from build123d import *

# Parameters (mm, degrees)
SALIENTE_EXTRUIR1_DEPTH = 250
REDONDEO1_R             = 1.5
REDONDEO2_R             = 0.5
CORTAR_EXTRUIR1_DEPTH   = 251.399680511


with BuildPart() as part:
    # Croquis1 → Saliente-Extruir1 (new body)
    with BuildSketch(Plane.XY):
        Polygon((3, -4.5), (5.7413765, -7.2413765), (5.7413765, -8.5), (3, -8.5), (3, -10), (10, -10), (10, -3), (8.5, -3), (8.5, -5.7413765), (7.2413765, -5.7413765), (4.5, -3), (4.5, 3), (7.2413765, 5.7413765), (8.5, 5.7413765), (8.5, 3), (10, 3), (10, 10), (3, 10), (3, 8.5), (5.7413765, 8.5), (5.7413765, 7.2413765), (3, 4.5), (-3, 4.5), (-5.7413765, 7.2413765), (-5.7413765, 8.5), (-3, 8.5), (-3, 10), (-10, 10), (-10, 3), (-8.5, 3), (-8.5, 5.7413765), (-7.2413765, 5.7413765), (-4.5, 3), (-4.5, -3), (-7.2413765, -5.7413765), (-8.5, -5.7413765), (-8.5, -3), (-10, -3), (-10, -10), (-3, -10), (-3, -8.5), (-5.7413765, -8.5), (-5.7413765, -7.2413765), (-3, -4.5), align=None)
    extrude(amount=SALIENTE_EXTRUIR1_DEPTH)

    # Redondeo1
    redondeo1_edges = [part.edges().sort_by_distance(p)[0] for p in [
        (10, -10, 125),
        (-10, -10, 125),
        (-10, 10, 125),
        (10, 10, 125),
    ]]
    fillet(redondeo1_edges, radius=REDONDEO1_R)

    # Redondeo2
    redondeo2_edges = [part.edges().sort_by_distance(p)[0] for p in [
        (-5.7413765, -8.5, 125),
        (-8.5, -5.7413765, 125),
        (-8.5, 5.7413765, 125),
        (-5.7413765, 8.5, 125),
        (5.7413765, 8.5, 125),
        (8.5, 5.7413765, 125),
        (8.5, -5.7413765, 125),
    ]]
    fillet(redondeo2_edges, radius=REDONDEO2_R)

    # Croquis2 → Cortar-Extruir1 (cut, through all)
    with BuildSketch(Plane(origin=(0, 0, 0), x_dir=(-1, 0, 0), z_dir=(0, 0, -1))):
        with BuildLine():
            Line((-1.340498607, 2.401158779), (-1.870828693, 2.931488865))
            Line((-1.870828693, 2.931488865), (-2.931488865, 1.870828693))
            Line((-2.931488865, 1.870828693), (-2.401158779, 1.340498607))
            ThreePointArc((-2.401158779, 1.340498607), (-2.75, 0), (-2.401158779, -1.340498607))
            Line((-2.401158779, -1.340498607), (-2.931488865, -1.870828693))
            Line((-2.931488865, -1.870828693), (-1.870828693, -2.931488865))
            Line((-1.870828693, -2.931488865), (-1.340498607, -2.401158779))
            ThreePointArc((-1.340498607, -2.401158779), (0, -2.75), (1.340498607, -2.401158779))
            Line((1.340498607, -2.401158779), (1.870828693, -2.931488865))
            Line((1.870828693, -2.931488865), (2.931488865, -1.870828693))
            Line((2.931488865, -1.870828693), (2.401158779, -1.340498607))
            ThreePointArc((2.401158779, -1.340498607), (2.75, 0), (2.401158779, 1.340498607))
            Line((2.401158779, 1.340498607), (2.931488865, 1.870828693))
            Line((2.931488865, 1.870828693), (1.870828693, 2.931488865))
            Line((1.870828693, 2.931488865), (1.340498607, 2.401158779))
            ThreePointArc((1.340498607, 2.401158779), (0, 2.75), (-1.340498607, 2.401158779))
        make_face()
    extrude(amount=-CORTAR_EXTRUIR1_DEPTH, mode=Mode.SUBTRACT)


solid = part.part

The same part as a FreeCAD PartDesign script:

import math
import FreeCAD as App
import Part
import Sketcher
Q = App.Units.Quantity


def edges_at(feature, points):
    """Names of the edges that pass closest to the given points."""
    edges = feature.Shape.Edges
    near = lambda p: min(range(len(edges)), key=lambda i: edges[i].distToShape(Part.Vertex(*p))[0])
    return sorted({f"Edge{near(p) + 1}" for p in points})

doc = App.newDocument("Part")
params = doc.addObject("Spreadsheet::Sheet", "Params")
for row, (alias, value) in enumerate([
    ("sketch1_width", "7 mm"),
    ("sketch1_width2", "6 mm"),
    ("sketch1_width3", "1.5 mm"),
    ("pad1_length", "250 mm"),
    ("fillet_radius", "1.5 mm"),
    ("fillet2_radius", "0.5 mm"),
    ("sketch2_radius", "2.75 mm"),
    ("sketch2_length", "1.5 mm"),
    ("sketch2_length2", "0.75 mm"),
], start=1):
    params.set(f"A{row}", alias)
    params.set(f"B{row}", "=" + value)
    params.setAlias(f"B{row}", alias)

body = doc.addObject("PartDesign::Body", "Body")

# Sketch on XY plane
sketch1 = body.newObject("Sketcher::SketchObject", "Sketch")
sketch1.AttachmentSupport = (doc.getObject("XY_Plane"), [""])
sketch1.MapMode = "FlatFace"
sketch1.addGeometry([
    Part.LineSegment(App.Vector(3, -4.5, 0), App.Vector(5.741377, -7.241377, 0)),  # 0
    Part.LineSegment(App.Vector(5.741377, -7.241377, 0), App.Vector(5.741377, -8.5, 0)),  # 1
    Part.LineSegment(App.Vector(5.741377, -8.5, 0), App.Vector(3, -8.5, 0)),  # 2
    Part.LineSegment(App.Vector(3, -8.5, 0), App.Vector(3, -10, 0)),  # 3
    Part.LineSegment(App.Vector(3, -10, 0), App.Vector(10, -10, 0)),  # 4
    Part.LineSegment(App.Vector(10, -10, 0), App.Vector(10, -3, 0)),  # 5
    Part.LineSegment(App.Vector(10, -3, 0), App.Vector(8.5, -3, 0)),  # 6
    Part.LineSegment(App.Vector(8.5, -3, 0), App.Vector(8.5, -5.741377, 0)),  # 7
    Part.LineSegment(App.Vector(8.5, -5.741377, 0), App.Vector(7.241377, -5.741377, 0)),  # 8
    Part.LineSegment(App.Vector(7.241377, -5.741377, 0), App.Vector(4.5, -3, 0)),  # 9
    Part.LineSegment(App.Vector(4.5, -3, 0), App.Vector(4.5, 3, 0)),  # 10
    Part.LineSegment(App.Vector(4.5, 3, 0), App.Vector(7.241377, 5.741377, 0)),  # 11
    Part.LineSegment(App.Vector(7.241377, 5.741377, 0), App.Vector(8.5, 5.741377, 0)),  # 12
    Part.LineSegment(App.Vector(8.5, 5.741377, 0), App.Vector(8.5, 3, 0)),  # 13
    Part.LineSegment(App.Vector(8.5, 3, 0), App.Vector(10, 3, 0)),  # 14
    Part.LineSegment(App.Vector(10, 3, 0), App.Vector(10, 10, 0)),  # 15
    Part.LineSegment(App.Vector(10, 10, 0), App.Vector(3, 10, 0)),  # 16
    Part.LineSegment(App.Vector(3, 10, 0), App.Vector(3, 8.5, 0)),  # 17
    Part.LineSegment(App.Vector(3, 8.5, 0), App.Vector(5.741377, 8.5, 0)),  # 18
    Part.LineSegment(App.Vector(5.741377, 8.5, 0), App.Vector(5.741377, 7.241377, 0)),  # 19
    Part.LineSegment(App.Vector(5.741377, 7.241377, 0), App.Vector(3, 4.5, 0)),  # 20
    Part.LineSegment(App.Vector(3, 4.5, 0), App.Vector(-3, 4.5, 0)),  # 21
    Part.LineSegment(App.Vector(-3, 4.5, 0), App.Vector(-5.741377, 7.241377, 0)),  # 22
    Part.LineSegment(App.Vector(-5.741377, 7.241377, 0), App.Vector(-5.741377, 8.5, 0)),  # 23
    Part.LineSegment(App.Vector(-5.741377, 8.5, 0), App.Vector(-3, 8.5, 0)),  # 24
    Part.LineSegment(App.Vector(-3, 8.5, 0), App.Vector(-3, 10, 0)),  # 25
    Part.LineSegment(App.Vector(-3, 10, 0), App.Vector(-10, 10, 0)),  # 26
    Part.LineSegment(App.Vector(-10, 10, 0), App.Vector(-10, 3, 0)),  # 27
    Part.LineSegment(App.Vector(-10, 3, 0), App.Vector(-8.5, 3, 0)),  # 28
    Part.LineSegment(App.Vector(-8.5, 3, 0), App.Vector(-8.5, 5.741377, 0)),  # 29
    Part.LineSegment(App.Vector(-8.5, 5.741377, 0), App.Vector(-7.241377, 5.741377, 0)),  # 30
    Part.LineSegment(App.Vector(-7.241377, 5.741377, 0), App.Vector(-4.5, 3, 0)),  # 31
    Part.LineSegment(App.Vector(-4.5, 3, 0), App.Vector(-4.5, -3, 0)),  # 32
    Part.LineSegment(App.Vector(-4.5, -3, 0), App.Vector(-7.241377, -5.741377, 0)),  # 33
    Part.LineSegment(App.Vector(-7.241377, -5.741377, 0), App.Vector(-8.5, -5.741377, 0)),  # 34
    Part.LineSegment(App.Vector(-8.5, -5.741377, 0), App.Vector(-8.5, -3, 0)),  # 35
    Part.LineSegment(App.Vector(-8.5, -3, 0), App.Vector(-10, -3, 0)),  # 36
    Part.LineSegment(App.Vector(-10, -3, 0), App.Vector(-10, -10, 0)),  # 37
    Part.LineSegment(App.Vector(-10, -10, 0), App.Vector(-3, -10, 0)),  # 38
    Part.LineSegment(App.Vector(-3, -10, 0), App.Vector(-3, -8.5, 0)),  # 39
    Part.LineSegment(App.Vector(-3, -8.5, 0), App.Vector(-5.741377, -8.5, 0)),  # 40
    Part.LineSegment(App.Vector(-5.741377, -8.5, 0), App.Vector(-5.741377, -7.241377, 0)),  # 41
    Part.LineSegment(App.Vector(-5.741377, -7.241377, 0), App.Vector(-3, -4.5, 0)),  # 42
    Part.LineSegment(App.Vector(-3, -4.5, 0), App.Vector(3, -4.5, 0)),  # 43
], False)
sketch1.addConstraint([
    Sketcher.Constraint("Coincident", 0, 2, 1, 1),
    Sketcher.Constraint("Coincident", 1, 2, 2, 1),
    Sketcher.Constraint("Coincident", 2, 2, 3, 1),
    Sketcher.Constraint("Coincident", 3, 2, 4, 1),
    Sketcher.Constraint("Coincident", 4, 2, 5, 1),
    Sketcher.Constraint("Coincident", 5, 2, 6, 1),
    Sketcher.Constraint("Coincident", 6, 2, 7, 1),
    Sketcher.Constraint("Coincident", 7, 2, 8, 1),
    Sketcher.Constraint("Coincident", 8, 2, 9, 1),
    Sketcher.Constraint("Coincident", 9, 2, 10, 1),
    Sketcher.Constraint("Coincident", 10, 2, 11, 1),
    Sketcher.Constraint("Coincident", 11, 2, 12, 1),
    Sketcher.Constraint("Coincident", 12, 2, 13, 1),
    Sketcher.Constraint("Coincident", 13, 2, 14, 1),
    Sketcher.Constraint("Coincident", 14, 2, 15, 1),
    Sketcher.Constraint("Coincident", 15, 2, 16, 1),
    Sketcher.Constraint("Coincident", 16, 2, 17, 1),
    Sketcher.Constraint("Coincident", 17, 2, 18, 1),
    Sketcher.Constraint("Coincident", 18, 2, 19, 1),
    Sketcher.Constraint("Coincident", 19, 2, 20, 1),
    Sketcher.Constraint("Coincident", 20, 2, 21, 1),
    Sketcher.Constraint("Coincident", 21, 2, 22, 1),
    Sketcher.Constraint("Coincident", 22, 2, 23, 1),
    Sketcher.Constraint("Coincident", 23, 2, 24, 1),
    Sketcher.Constraint("Coincident", 24, 2, 25, 1),
    Sketcher.Constraint("Coincident", 25, 2, 26, 1),
    Sketcher.Constraint("Coincident", 26, 2, 27, 1),
    Sketcher.Constraint("Coincident", 27, 2, 28, 1),
    Sketcher.Constraint("Coincident", 28, 2, 29, 1),
    Sketcher.Constraint("Coincident", 29, 2, 30, 1),
    Sketcher.Constraint("Coincident", 30, 2, 31, 1),
    Sketcher.Constraint("Coincident", 31, 2, 32, 1),
    Sketcher.Constraint("Coincident", 32, 2, 33, 1),
    Sketcher.Constraint("Coincident", 33, 2, 34, 1),
    Sketcher.Constraint("Coincident", 34, 2, 35, 1),
    Sketcher.Constraint("Coincident", 35, 2, 36, 1),
    Sketcher.Constraint("Coincident", 36, 2, 37, 1),
    Sketcher.Constraint("Coincident", 37, 2, 38, 1),
    Sketcher.Constraint("Coincident", 38, 2, 39, 1),
    Sketcher.Constraint("Coincident", 39, 2, 40, 1),
    Sketcher.Constraint("Coincident", 40, 2, 41, 1),
    Sketcher.Constraint("Coincident", 41, 2, 42, 1),
    Sketcher.Constraint("Coincident", 42, 2, 43, 1),
    Sketcher.Constraint("Coincident", 43, 2, 0, 1),
    Sketcher.Constraint("Vertical", 1),
    Sketcher.Constraint("Horizontal", 2),
    Sketcher.Constraint("Vertical", 3),
    Sketcher.Constraint("Horizontal", 4),
    Sketcher.Constraint("Vertical", 5),
    Sketcher.Constraint("Horizontal", 6),
    Sketcher.Constraint("Vertical", 7),
    Sketcher.Constraint("Horizontal", 8),
    Sketcher.Constraint("Vertical", 10),
    Sketcher.Constraint("Horizontal", 12),
    Sketcher.Constraint("Vertical", 13),
    Sketcher.Constraint("Horizontal", 14),
    Sketcher.Constraint("Vertical", 15),
    Sketcher.Constraint("Horizontal", 16),
    Sketcher.Constraint("Vertical", 17),
    Sketcher.Constraint("Horizontal", 18),
    Sketcher.Constraint("Vertical", 19),
    Sketcher.Constraint("Horizontal", 21),
    Sketcher.Constraint("Vertical", 23),
    Sketcher.Constraint("Horizontal", 24),
    Sketcher.Constraint("Vertical", 25),
    Sketcher.Constraint("Horizontal", 26),
    Sketcher.Constraint("Vertical", 27),
    Sketcher.Constraint("Horizontal", 28),
    Sketcher.Constraint("Vertical", 29),
    Sketcher.Constraint("Horizontal", 30),
    Sketcher.Constraint("Vertical", 32),
    Sketcher.Constraint("Horizontal", 34),
    Sketcher.Constraint("Vertical", 35),
    Sketcher.Constraint("Horizontal", 36),
    Sketcher.Constraint("Vertical", 37),
    Sketcher.Constraint("Horizontal", 38),
    Sketcher.Constraint("Vertical", 39),
    Sketcher.Constraint("Horizontal", 40),
    Sketcher.Constraint("Vertical", 41),
    Sketcher.Constraint("Horizontal", 43),
    Sketcher.Constraint("Symmetric", 0, 2, 22, 2, -1, 1),
    Sketcher.Constraint("Symmetric", 2, 2, 24, 2, -1, 1),
    Sketcher.Constraint("Symmetric", 4, 2, 26, 2, -1, 1),
    Sketcher.Constraint("Symmetric", 6, 2, 28, 2, -1, 1),
    Sketcher.Constraint("Symmetric", 8, 2, 30, 2, -1, 1),
    Sketcher.Constraint("Symmetric", 9, 2, 31, 2, -1, 1),
    Sketcher.Constraint("Symmetric", 11, 2, 33, 2, -1, 1),
    Sketcher.Constraint("Symmetric", 13, 2, 35, 2, -1, 1),
    Sketcher.Constraint("Symmetric", 15, 2, 37, 2, -1, 1),
    Sketcher.Constraint("Symmetric", 17, 2, 39, 2, -1, 1),
    Sketcher.Constraint("Symmetric", 19, 2, 41, 2, -1, 1),
    Sketcher.Constraint("Symmetric", 20, 2, 42, 2, -1, 1),
    Sketcher.Constraint("Symmetric", 19, 2, 22, 2, -2),
    Sketcher.Constraint("Symmetric", 17, 2, 24, 2, -2),
    Sketcher.Constraint("Symmetric", 15, 2, 26, 2, -2),
    Sketcher.Constraint("Symmetric", 13, 2, 28, 2, -2),
    Sketcher.Constraint("Symmetric", 11, 2, 30, 2, -2),
    Sketcher.Constraint("Parallel", 0, 9),
    Sketcher.Constraint("Perpendicular", 9, 11),
    Sketcher.Constraint("Parallel", 11, 20),
    Sketcher.Constraint("Perpendicular", 20, 22),
    Sketcher.Constraint("Perpendicular", 31, 33),
    Sketcher.Constraint("Horizontal", 6, 2, 9, 2),
    Sketcher.Constraint("Horizontal", 10, 2, 13, 2),
    Sketcher.Constraint("Vertical", 17, 2, 20, 2),
    Sketcher.Constraint("Equal", 34, 1),
    Sketcher.Constraint("Equal", 36, 3),
    Sketcher.Constraint("Equal", 38, 5),
    Sketcher.Constraint("Equal", 40, 7),
    Sketcher.Constraint("Equal", 43, 10),
    Sketcher.Constraint("DistanceX", 4, 1, 4, 2, Q("7 mm")),
    Sketcher.Constraint("DistanceX", 21, 2, 21, 1, Q("6 mm")),
    Sketcher.Constraint("DistanceX", 6, 2, 6, 1, Q("1.5 mm")),
    Sketcher.Constraint("DistanceX", 9, 2, 6, 2, Q("4 mm")),
    Sketcher.Constraint("Distance", 0, Q("3.876892 mm")),
])
sketch1.setExpression("Constraints[110]", "Params.sketch1_width")
sketch1.setExpression("Constraints[111]", "Params.sketch1_width2")
sketch1.setExpression("Constraints[112]", "Params.sketch1_width3")
pad1 = body.newObject("PartDesign::Pad", "Pad")
pad1.Profile = sketch1
pad1.setExpression("Length", "Params.pad1_length")
doc.recompute()

fillet = body.newObject("PartDesign::Fillet", "Fillet")
fillet.Base = (pad1, edges_at(pad1, [
    (10, -10, 125),
    (-10, -10, 125),
    (-10, 10, 125),
    (10, 10, 125),
]))
fillet.setExpression("Radius", "Params.fillet_radius")
doc.recompute()

fillet2 = body.newObject("PartDesign::Fillet", "Fillet001")
fillet2.Base = (fillet, edges_at(fillet, [
    (-5.741, -8.5, 125),
    (-8.5, -5.741, 125),
    (-8.5, 5.741, 125),
    (-5.741, 8.5, 125),
    (5.741, 8.5, 125),
    (8.5, 5.741, 125),
    (8.5, -5.741, 125),
]))
fillet2.setExpression("Radius", "Params.fillet2_radius")

# Sketch on XY plane
sketch2 = body.newObject("Sketcher::SketchObject", "Sketch001")
sketch2.AttachmentSupport = (doc.getObject("XY_Plane"), [""])
sketch2.MapMode = "FlatFace"
sketch2.addGeometry([
    Part.LineSegment(App.Vector(1.340499, 2.401159, 0), App.Vector(1.870829, 2.931489, 0)),  # 0
    Part.LineSegment(App.Vector(1.870829, 2.931489, 0), App.Vector(2.931489, 1.870829, 0)),  # 1
    Part.LineSegment(App.Vector(2.931489, 1.870829, 0), App.Vector(2.401159, 1.340499, 0)),  # 2
    Part.ArcOfCircle(Part.Circle(App.Vector(0, 0, 0), App.Vector(0, 0, 1), 2.75), math.radians(-29.17338), math.radians(29.17338)),  # 3
    Part.LineSegment(App.Vector(2.401159, -1.340499, 0), App.Vector(2.931489, -1.870829, 0)),  # 4
    Part.LineSegment(App.Vector(2.931489, -1.870829, 0), App.Vector(1.870829, -2.931489, 0)),  # 5
    Part.LineSegment(App.Vector(1.870829, -2.931489, 0), App.Vector(1.340499, -2.401159, 0)),  # 6
    Part.ArcOfCircle(Part.Circle(App.Vector(0, 0, 0), App.Vector(0, 0, 1), 2.75), math.radians(-119.17338), math.radians(-60.82662)),  # 7
    Part.LineSegment(App.Vector(-1.340499, -2.401159, 0), App.Vector(-1.870829, -2.931489, 0)),  # 8
    Part.LineSegment(App.Vector(-1.870829, -2.931489, 0), App.Vector(-2.931489, -1.870829, 0)),  # 9
    Part.LineSegment(App.Vector(-2.931489, -1.870829, 0), App.Vector(-2.401159, -1.340499, 0)),  # 10
    Part.ArcOfCircle(Part.Circle(App.Vector(0, 0, 0), App.Vector(0, 0, 1), 2.75), math.radians(150.82662), math.radians(209.17338)),  # 11
    Part.LineSegment(App.Vector(-2.401159, 1.340499, 0), App.Vector(-2.931489, 1.870829, 0)),  # 12
    Part.LineSegment(App.Vector(-2.931489, 1.870829, 0), App.Vector(-1.870829, 2.931489, 0)),  # 13
    Part.LineSegment(App.Vector(-1.870829, 2.931489, 0), App.Vector(-1.340499, 2.401159, 0)),  # 14
    Part.ArcOfCircle(Part.Circle(App.Vector(0, 0, 0), App.Vector(0, 0, 1), 2.75), math.radians(60.82662), math.radians(119.17338)),  # 15
], False)
sketch2.addConstraint([
    Sketcher.Constraint("Coincident", 0, 2, 1, 1),
    Sketcher.Constraint("Coincident", 1, 2, 2, 1),
    Sketcher.Constraint("Coincident", 2, 2, 3, 2),
    Sketcher.Constraint("Coincident", 3, 1, 4, 1),
    Sketcher.Constraint("Coincident", 4, 2, 5, 1),
    Sketcher.Constraint("Coincident", 5, 2, 6, 1),
    Sketcher.Constraint("Coincident", 6, 2, 7, 2),
    Sketcher.Constraint("Coincident", 7, 1, 8, 1),
    Sketcher.Constraint("Coincident", 8, 2, 9, 1),
    Sketcher.Constraint("Coincident", 9, 2, 10, 1),
    Sketcher.Constraint("Coincident", 10, 2, 11, 2),
    Sketcher.Constraint("Coincident", 11, 1, 12, 1),
    Sketcher.Constraint("Coincident", 12, 2, 13, 1),
    Sketcher.Constraint("Coincident", 13, 2, 14, 1),
    Sketcher.Constraint("Coincident", 14, 2, 15, 2),
    Sketcher.Constraint("Coincident", 15, 1, 0, 1),
    Sketcher.Constraint("Coincident", 3, 3, -1, 1),
    Sketcher.Constraint("Coincident", 7, 3, -1, 1),
    Sketcher.Constraint("Coincident", 11, 3, -1, 1),
    Sketcher.Constraint("Coincident", 15, 3, -1, 1),
    Sketcher.Constraint("Equal", 3, 7),
    Sketcher.Constraint("Equal", 7, 11),
    Sketcher.Constraint("Equal", 11, 15),
    Sketcher.Constraint("Symmetric", 0, 2, 8, 2, -1, 1),
    Sketcher.Constraint("Symmetric", 1, 2, 9, 2, -1, 1),
    Sketcher.Constraint("Symmetric", 4, 2, 12, 2, -1, 1),
    Sketcher.Constraint("Symmetric", 5, 2, 13, 2, -1, 1),
    Sketcher.Constraint("Symmetric", 5, 2, 8, 2, -2),
    Sketcher.Constraint("Symmetric", 4, 2, 9, 2, -2),
    Sketcher.Constraint("Perpendicular", 0, 1),
    Sketcher.Constraint("Perpendicular", 1, 2),
    Sketcher.Constraint("Perpendicular", 2, 4),
    Sketcher.Constraint("Perpendicular", 4, 5),
    Sketcher.Constraint("Perpendicular", 5, 6),
    Sketcher.Constraint("Perpendicular", 6, 8),
    Sketcher.Constraint("Perpendicular", 9, 10),
    Sketcher.Constraint("Perpendicular", 10, 12),
    Sketcher.Constraint("Perpendicular", 13, 14),
    Sketcher.Constraint("Equal", 0, 2),
    Sketcher.Constraint("Radius", 3, Q("2.75 mm")),
    Sketcher.Constraint("Distance", 1, Q("1.5 mm")),
    Sketcher.Constraint("Distance", 0, Q("0.75 mm")),
])
sketch2.setExpression("Constraints[39]", "Params.sketch2_radius")
sketch2.setExpression("Constraints[40]", "Params.sketch2_length")
sketch2.setExpression("Constraints[41]", "Params.sketch2_length2")
pocket1 = body.newObject("PartDesign::Pocket", "Pocket")
pocket1.Profile = sketch2
pocket1.Type = "ThroughAll"
pocket1.Reversed = True

doc.recompute()
